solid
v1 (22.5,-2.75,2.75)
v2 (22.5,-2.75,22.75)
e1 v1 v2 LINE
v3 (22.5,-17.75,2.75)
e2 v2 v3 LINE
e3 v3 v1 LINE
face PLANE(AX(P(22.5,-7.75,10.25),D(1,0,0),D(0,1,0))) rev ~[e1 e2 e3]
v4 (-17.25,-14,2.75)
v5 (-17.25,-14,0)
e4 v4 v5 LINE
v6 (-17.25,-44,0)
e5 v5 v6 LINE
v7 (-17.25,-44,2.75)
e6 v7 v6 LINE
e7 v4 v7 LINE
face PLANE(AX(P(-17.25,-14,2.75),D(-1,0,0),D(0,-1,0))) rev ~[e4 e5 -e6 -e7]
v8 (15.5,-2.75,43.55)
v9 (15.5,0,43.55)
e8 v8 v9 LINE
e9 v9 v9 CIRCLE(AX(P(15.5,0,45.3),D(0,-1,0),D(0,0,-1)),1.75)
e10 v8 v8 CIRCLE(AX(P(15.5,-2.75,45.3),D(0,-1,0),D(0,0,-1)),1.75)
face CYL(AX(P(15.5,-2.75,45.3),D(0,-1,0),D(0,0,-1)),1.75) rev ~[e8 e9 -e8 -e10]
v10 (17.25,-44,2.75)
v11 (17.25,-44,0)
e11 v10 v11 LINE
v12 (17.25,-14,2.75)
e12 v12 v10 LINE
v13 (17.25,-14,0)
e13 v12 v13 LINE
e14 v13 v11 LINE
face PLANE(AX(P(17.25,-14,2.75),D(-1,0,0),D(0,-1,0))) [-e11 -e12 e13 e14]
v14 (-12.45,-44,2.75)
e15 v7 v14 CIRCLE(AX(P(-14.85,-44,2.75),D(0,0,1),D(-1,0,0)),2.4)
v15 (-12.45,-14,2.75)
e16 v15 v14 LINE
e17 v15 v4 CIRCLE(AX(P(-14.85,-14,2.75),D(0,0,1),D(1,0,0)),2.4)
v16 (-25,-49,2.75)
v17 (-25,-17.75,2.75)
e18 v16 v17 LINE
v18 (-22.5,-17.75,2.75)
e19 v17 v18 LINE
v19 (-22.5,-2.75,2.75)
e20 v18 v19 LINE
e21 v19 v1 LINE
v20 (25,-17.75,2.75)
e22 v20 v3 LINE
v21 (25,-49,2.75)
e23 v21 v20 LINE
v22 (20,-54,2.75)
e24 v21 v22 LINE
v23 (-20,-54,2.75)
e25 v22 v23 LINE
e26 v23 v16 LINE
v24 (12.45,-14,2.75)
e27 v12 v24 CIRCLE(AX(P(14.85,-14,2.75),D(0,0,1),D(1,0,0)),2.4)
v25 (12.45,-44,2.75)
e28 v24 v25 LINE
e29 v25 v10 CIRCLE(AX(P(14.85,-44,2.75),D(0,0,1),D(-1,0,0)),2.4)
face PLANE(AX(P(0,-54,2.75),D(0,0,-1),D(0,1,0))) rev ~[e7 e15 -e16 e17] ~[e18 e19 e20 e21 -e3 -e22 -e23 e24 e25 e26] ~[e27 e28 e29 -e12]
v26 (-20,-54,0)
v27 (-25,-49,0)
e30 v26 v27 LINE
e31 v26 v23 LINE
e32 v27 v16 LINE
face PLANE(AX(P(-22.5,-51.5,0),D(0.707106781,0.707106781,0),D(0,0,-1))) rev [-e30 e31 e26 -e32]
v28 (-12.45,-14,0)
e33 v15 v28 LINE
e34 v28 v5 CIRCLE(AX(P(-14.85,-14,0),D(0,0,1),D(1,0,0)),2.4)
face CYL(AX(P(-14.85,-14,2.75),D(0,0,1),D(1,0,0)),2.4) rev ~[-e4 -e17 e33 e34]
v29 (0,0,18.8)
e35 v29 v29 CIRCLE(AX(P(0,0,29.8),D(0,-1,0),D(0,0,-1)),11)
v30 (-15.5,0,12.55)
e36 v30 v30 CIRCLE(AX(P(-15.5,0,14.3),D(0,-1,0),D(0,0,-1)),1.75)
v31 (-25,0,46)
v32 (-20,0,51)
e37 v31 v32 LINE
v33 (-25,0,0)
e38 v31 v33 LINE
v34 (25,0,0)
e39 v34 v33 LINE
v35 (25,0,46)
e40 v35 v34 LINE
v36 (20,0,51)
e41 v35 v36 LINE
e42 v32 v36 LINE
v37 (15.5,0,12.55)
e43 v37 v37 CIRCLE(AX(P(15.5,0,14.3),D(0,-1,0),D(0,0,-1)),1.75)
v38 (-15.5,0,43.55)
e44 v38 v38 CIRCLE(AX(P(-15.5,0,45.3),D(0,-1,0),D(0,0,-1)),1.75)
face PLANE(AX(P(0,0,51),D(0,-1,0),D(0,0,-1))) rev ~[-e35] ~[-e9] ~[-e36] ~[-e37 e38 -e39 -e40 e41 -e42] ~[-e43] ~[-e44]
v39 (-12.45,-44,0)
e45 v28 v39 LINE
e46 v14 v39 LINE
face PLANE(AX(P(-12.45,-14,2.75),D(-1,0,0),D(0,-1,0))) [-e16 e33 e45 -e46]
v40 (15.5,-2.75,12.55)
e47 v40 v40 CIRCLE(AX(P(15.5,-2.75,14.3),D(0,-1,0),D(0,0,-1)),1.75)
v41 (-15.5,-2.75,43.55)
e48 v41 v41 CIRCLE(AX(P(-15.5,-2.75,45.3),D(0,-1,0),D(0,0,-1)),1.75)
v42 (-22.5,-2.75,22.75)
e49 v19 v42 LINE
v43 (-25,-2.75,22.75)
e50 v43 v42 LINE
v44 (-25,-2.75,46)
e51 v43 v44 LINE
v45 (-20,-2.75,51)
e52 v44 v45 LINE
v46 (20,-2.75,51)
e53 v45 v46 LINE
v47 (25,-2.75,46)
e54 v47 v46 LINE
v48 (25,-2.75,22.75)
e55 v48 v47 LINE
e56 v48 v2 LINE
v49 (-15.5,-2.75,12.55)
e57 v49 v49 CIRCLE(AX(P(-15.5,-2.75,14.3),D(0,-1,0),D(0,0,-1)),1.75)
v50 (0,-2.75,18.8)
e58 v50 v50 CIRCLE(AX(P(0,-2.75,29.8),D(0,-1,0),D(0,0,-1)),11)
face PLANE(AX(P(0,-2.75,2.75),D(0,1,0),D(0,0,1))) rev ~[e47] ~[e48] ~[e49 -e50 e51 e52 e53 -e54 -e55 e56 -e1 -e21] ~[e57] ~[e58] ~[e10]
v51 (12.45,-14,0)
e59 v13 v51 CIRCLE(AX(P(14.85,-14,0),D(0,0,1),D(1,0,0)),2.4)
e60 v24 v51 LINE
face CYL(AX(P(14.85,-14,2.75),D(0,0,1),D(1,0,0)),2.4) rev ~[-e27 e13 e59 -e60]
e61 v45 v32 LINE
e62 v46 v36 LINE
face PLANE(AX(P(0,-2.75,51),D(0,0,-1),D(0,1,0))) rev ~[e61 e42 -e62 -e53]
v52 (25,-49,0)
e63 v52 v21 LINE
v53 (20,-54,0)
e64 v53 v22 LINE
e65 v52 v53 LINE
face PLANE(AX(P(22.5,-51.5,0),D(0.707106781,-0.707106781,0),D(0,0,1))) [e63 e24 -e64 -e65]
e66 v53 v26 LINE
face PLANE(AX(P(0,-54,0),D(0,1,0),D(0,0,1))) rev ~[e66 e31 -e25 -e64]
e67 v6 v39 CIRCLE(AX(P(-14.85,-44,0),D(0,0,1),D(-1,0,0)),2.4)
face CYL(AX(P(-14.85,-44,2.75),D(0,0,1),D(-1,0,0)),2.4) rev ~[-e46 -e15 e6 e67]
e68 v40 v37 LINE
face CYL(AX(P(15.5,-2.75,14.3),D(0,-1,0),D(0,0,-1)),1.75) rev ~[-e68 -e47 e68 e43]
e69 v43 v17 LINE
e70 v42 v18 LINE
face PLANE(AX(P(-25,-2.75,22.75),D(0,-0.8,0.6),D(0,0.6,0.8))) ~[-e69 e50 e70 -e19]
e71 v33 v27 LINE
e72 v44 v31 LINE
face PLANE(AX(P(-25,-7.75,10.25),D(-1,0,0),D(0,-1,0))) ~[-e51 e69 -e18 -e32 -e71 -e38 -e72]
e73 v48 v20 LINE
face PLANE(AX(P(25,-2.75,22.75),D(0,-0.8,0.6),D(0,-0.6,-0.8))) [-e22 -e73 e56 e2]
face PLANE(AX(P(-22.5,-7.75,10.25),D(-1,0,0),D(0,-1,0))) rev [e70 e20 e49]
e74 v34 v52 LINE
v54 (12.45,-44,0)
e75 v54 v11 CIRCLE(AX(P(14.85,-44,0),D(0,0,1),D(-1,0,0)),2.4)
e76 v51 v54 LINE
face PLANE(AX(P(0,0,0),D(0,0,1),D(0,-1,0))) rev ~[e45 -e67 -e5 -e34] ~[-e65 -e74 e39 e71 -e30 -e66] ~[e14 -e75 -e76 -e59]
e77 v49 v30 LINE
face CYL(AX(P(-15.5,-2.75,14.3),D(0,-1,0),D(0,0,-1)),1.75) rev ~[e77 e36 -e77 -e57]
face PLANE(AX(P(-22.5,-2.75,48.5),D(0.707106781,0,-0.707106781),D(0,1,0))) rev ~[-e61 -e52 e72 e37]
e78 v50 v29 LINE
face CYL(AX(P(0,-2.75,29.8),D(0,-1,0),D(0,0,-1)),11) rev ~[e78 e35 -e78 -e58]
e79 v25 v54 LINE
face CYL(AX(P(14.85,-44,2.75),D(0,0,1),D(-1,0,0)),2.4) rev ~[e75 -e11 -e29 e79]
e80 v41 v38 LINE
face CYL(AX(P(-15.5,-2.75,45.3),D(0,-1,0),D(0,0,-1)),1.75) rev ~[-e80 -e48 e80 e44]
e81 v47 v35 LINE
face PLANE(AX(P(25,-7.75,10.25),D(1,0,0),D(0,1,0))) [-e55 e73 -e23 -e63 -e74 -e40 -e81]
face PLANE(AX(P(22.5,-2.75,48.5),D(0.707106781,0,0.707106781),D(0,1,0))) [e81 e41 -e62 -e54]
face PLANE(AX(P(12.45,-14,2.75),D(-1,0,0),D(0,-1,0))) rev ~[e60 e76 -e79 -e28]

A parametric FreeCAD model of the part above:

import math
import FreeCAD as App
import Part
import Sketcher

V = App.Vector
Q = App.Units.Quantity


def edges_at(feature, points):
    """Names of the edges that pass closest to the given points."""
    edges = feature.Shape.Edges
    near = lambda p: min(range(len(edges)), key=lambda i: edges[i].distToShape(Part.Vertex(*p))[0])
    return sorted({f"Edge{near(p) + 1}" for p in points})

doc = App.newDocument("Part")
params = doc.addObject("Spreadsheet::Sheet", "Params")
for row, (alias, value) in enumerate([
    ("sketch1_width", "54 mm"),
    ("sketch1_height", "51 mm"),
    ("sketch1_width2", "2.75 mm"),
    ("pad1_length", "50 mm"),
    ("chamfer_size", "5 mm"),
    ("sketch2_width", "15 mm"),
    ("sketch2_height", "20 mm"),
    ("pad2_length", "2.5 mm"),
    ("sketch3_diameter", "22 mm"),
    ("pocket1_length", "5 mm"),
    ("sketch4_diameter", "3.5 mm"),
    ("pocket2_length", "25 mm"),
    ("sketch5_radius", "2.4 mm"),
    ("sketch5_height", "30 mm"),
    ("pocket3_length", "5 mm"),
], start=1):
    params.set(f"A{row}", alias)
    params.set(f"B{row}", "=" + value)
    params.setAlias(f"B{row}", alias)

body = doc.addObject("PartDesign::Body", "Body")

# Sketch on YZ plane
sketch1 = body.newObject("Sketcher::SketchObject", "Sketch")
sketch1.AttachmentSupport = (doc.getObject("YZ_Plane"), [""])
sketch1.MapMode = "FlatFace"
sketch1.addGeometry([
    Part.LineSegment(V(0, 0, 0), V(0, 51, 0)),  # 0
    Part.LineSegment(V(0, 51, 0), V(-2.8, 51, 0)),  # 1
    Part.LineSegment(V(-2.8, 51, 0), V(-2.8, 2.8, 0)),  # 2
    Part.LineSegment(V(-2.8, 2.8, 0), V(-54, 2.8, 0)),  # 3
    Part.LineSegment(V(-54, 2.8, 0), V(-54, 0, 0)),  # 4
    Part.LineSegment(V(-54, 0, 0), V(0, 0, 0)),  # 5
], False)
sketch1.addConstraint([
    Sketcher.Constraint("Coincident", 0, 2, 1, 1),
    Sketcher.Constraint("Coincident", 1, 2, 2, 1),
    Sketcher.Constraint("Coincident", 2, 2, 3, 1),
    Sketcher.Constraint("Coincident", 3, 2, 4, 1),
    Sketcher.Constraint("Coincident", 4, 2, 5, 1),
    Sketcher.Constraint("Coincident", 5, 2, 0, 1),
    Sketcher.Constraint("Vertical", 0),
    Sketcher.Constraint("Horizontal", 1),
    Sketcher.Constraint("Vertical", 2),
    Sketcher.Constraint("Horizontal", 3),
    Sketcher.Constraint("Vertical", 4),
    Sketcher.Constraint("Horizontal", 5),
    Sketcher.Constraint("Coincident", 5, 2, -1, 1),
    Sketcher.Constraint("Equal", 1, 4),
    Sketcher.Constraint("DistanceX", 5, 1, 5, 2, Q("54 mm")),
    Sketcher.Constraint("DistanceY", 0, 1, 0, 2, Q("51 mm")),
    Sketcher.Constraint("DistanceX", 1, 2, 1, 1, Q("2.75 mm")),
])
sketch1.setExpression("Constraints[14]", "Params.sketch1_width")
sketch1.setExpression("Constraints[15]", "Params.sketch1_height")
sketch1.setExpression("Constraints[16]", "Params.sketch1_width2")
pad1 = body.newObject("PartDesign::Pad", "Pad")
pad1.Profile = sketch1
pad1.setExpression("Length", "Params.pad1_length")
pad1.Midplane = True
doc.recompute()

chamfer = body.newObject("PartDesign::Chamfer", "Chamfer")
chamfer.Base = (pad1, edges_at(pad1, [
    (25, -1.375, 51),
    (-25, -1.375, 51),
    (25, -54, 1.375),
    (-25, -54, 1.375),
]))
chamfer.setExpression("Size", "Params.chamfer_size")

# Sketch on YZ plane
sketch2 = body.newObject("Sketcher::SketchObject", "Sketch001")
sketch2.AttachmentSupport = (doc.getObject("YZ_Plane"), [""])
sketch2.MapMode = "FlatFace"
sketch2.AttachmentOffset = App.Placement(V(0, 0, 25), App.Rotation())
sketch2.addGeometry([
    Part.LineSegment(V(-3, 3, 0), V(-3, 23, 0)),
    Part.LineSegment(V(-3, 23, 0), V(-18, 3, 0)),
    Part.LineSegment(V(-18, 3, 0), V(-3, 3, 0)),
], False)
sketch2.addConstraint([
    Sketcher.Constraint("Coincident", 0, 2, 1, 1),
    Sketcher.Constraint("Coincident", 1, 2, 2, 1),
    Sketcher.Constraint("Coincident", 2, 2, 0, 1),
    Sketcher.Constraint("Vertical", 0),
    Sketcher.Constraint("Horizontal", 2),
    Sketcher.Constraint("DistanceX", 2, 1, 2, 2, Q("15 mm")),
    Sketcher.Constraint("DistanceY", 0, 1, 0, 2, Q("20 mm")),
    Sketcher.Constraint("DistanceX", 0, 2, -1, 1, Q("2.75 mm")),
    Sketcher.Constraint("DistanceY", -1, 1, 0, 2, Q("22.75 mm")),
])
sketch2.setExpression("Constraints[5]", "Params.sketch2_width")
sketch2.setExpression("Constraints[6]", "Params.sketch2_height")
pad2 = body.newObject("PartDesign::Pad", "Pad001")
pad2.Profile = sketch2
pad2.setExpression("Length", "Params.pad2_length")
pad2.Reversed = True
doc.recompute()

mirrored = body.newObject("PartDesign::Mirrored", "Mirrored")
mirrored.Originals = [pad2]
mirrored.MirrorPlane = (doc.getObject("YZ_Plane"), [""])
body.Tip = mirrored

# Sketch on XZ plane
sketch3 = body.newObject("Sketcher::SketchObject", "Sketch002")
sketch3.AttachmentSupport = (doc.getObject("XZ_Plane"), [""])
sketch3.MapMode = "FlatFace"
sketch3.AttachmentOffset = App.Placement(V(0, 0, 2.75), App.Rotation())
sketch3.addGeometry(Part.Circle(V(0, 30, 0), V(0, 0, 1), 11), False)
sketch3.addConstraint([
    Sketcher.Constraint("PointOnObject", 0, 3, -2),
    Sketcher.Constraint("Diameter", 0, Q("22 mm")),
    Sketcher.Constraint("DistanceY", -1, 1, 0, 3, Q("29.8 mm")),
])
sketch3.setExpression("Constraints[1]", "Params.sketch3_diameter")
pocket1 = body.newObject("PartDesign::Pocket", "Pocket")
pocket1.Profile = sketch3
pocket1.setExpression("Length", "Params.pocket1_length")

# Sketch on XZ plane
sketch4 = body.newObject("Sketcher::SketchObject", "Sketch003")
sketch4.AttachmentSupport = (doc.getObject("XZ_Plane"), [""])
sketch4.MapMode = "FlatFace"
sketch4.AttachmentOffset = App.Placement(V(0, 0, 2.75), App.Rotation())
sketch4.addGeometry([
    Part.Circle(V(15.5, 45.3, 0), V(0, 0, 1), 1.8),
    Part.Circle(V(15.5, 14.3, 0), V(0, 0, 1), 1.8),
    Part.Circle(V(-15.5, 14.3, 0), V(0, 0, 1), 1.8),
    Part.Circle(V(-15.5, 45.3, 0), V(0, 0, 1), 1.8),
], False)
sketch4.addConstraint([
    Sketcher.Constraint("Equal", 0, 1),
    Sketcher.Constraint("Equal", 1, 2),
    Sketcher.Constraint("Equal", 2, 3),
    Sketcher.Constraint("Symmetric", 1, 3, 2, 3, -2),
    Sketcher.Constraint("Symmetric", 0, 3, 3, 3, -2),
    Sketcher.Constraint("Vertical", 0, 3, 1, 3),
    Sketcher.Constraint("Diameter", 0, Q("3.5 mm")),
    Sketcher.Constraint("DistanceY", 1, 3, 0, 3, Q("31 mm")),
    Sketcher.Constraint("DistanceX", 2, 3, 1, 3, Q("31 mm")),
    Sketcher.Constraint("DistanceY", -1, 1, 0, 3, Q("45.3 mm")),
])
sketch4.setExpression("Constraints[6]", "Params.sketch4_diameter")
pocket2 = body.newObject("PartDesign::Pocket", "Pocket001")
pocket2.Profile = sketch4
pocket2.setExpression("Length", "Params.pocket2_length")

# Sketch on XY plane
sketch5 = body.newObject("Sketcher::SketchObject", "Sketch004")
sketch5.AttachmentSupport = (doc.getObject("XY_Plane"), [""])
sketch5.MapMode = "FlatFace"
sketch5.AttachmentOffset = App.Placement(V(0, 0, 2.75), App.Rotation())
sketch5.addGeometry([
    Part.ArcOfCircle(Part.Circle(V(14.8, -14, 0), V(0, 0, 1), 2.4), math.radians(0), math.radians(180)),  # 0
    Part.LineSegment(V(12.4, -14, 0), V(12.4, -44, 0)),  # 1
    Part.ArcOfCircle(Part.Circle(V(14.8, -44, 0), V(0, 0, 1), 2.4), math.radians(180), math.radians(360)),  # 2
    Part.LineSegment(V(17.2, -44, 0), V(17.2, -14, 0)),  # 3
    Part.ArcOfCircle(Part.Circle(V(-14.8, -14, 0), V(0, 0, 1), 2.4), math.radians(0), math.radians(180)),  # 4
    Part.LineSegment(V(-17.2, -14, 0), V(-17.2, -44, 0)),  # 5
    Part.ArcOfCircle(Part.Circle(V(-14.8, -44, 0), V(0, 0, 1), 2.4), math.radians(180), math.radians(360)),  # 6
    Part.LineSegment(V(-12.4, -44, 0), V(-12.4, -14, 0)),  # 7
], False)
sketch5.addConstraint([
    Sketcher.Constraint("Tangent", 0, 2, 1, 1),
    Sketcher.Constraint("Tangent", 1, 2, 2, 1),
    Sketcher.Constraint("Tangent", 2, 2, 3, 1),
    Sketcher.Constraint("Tangent", 3, 2, 0, 1),
    Sketcher.Constraint("Tangent", 4, 2, 5, 1),
    Sketcher.Constraint("Tangent", 5, 2, 6, 1),
    Sketcher.Constraint("Tangent", 6, 2, 7, 1),
    Sketcher.Constraint("Tangent", 7, 2, 4, 1),
    Sketcher.Constraint("Vertical", 1),
    Sketcher.Constraint("Vertical", 3),
    Sketcher.Constraint("Vertical", 5),
    Sketcher.Constraint("Vertical", 7),
    Sketcher.Constraint("Equal", 2, 4),
    Sketcher.Constraint("Symmetric", 0, 3, 4, 3, -2),
    Sketcher.Constraint("Horizontal", 2, 3, 6, 3),
    Sketcher.Constraint("Radius", 0, Q("2.4 mm")),
    Sketcher.Constraint("DistanceY", 1, 2, 1, 1, Q("30 mm")),
    Sketcher.Constraint("DistanceY", 0, 3, -1, 1, Q("14 mm")),
    Sketcher.Constraint("DistanceX", 4, 3, 0, 3, Q("29.7 mm")),
])
sketch5.setExpression("Constraints[15]", "Params.sketch5_radius")
sketch5.setExpression("Constraints[16]", "Params.sketch5_height")
pocket3 = body.newObject("PartDesign::Pocket", "Pocket002")
pocket3.Profile = sketch5
pocket3.setExpression("Length", "Params.pocket3_length")

doc.recompute()
